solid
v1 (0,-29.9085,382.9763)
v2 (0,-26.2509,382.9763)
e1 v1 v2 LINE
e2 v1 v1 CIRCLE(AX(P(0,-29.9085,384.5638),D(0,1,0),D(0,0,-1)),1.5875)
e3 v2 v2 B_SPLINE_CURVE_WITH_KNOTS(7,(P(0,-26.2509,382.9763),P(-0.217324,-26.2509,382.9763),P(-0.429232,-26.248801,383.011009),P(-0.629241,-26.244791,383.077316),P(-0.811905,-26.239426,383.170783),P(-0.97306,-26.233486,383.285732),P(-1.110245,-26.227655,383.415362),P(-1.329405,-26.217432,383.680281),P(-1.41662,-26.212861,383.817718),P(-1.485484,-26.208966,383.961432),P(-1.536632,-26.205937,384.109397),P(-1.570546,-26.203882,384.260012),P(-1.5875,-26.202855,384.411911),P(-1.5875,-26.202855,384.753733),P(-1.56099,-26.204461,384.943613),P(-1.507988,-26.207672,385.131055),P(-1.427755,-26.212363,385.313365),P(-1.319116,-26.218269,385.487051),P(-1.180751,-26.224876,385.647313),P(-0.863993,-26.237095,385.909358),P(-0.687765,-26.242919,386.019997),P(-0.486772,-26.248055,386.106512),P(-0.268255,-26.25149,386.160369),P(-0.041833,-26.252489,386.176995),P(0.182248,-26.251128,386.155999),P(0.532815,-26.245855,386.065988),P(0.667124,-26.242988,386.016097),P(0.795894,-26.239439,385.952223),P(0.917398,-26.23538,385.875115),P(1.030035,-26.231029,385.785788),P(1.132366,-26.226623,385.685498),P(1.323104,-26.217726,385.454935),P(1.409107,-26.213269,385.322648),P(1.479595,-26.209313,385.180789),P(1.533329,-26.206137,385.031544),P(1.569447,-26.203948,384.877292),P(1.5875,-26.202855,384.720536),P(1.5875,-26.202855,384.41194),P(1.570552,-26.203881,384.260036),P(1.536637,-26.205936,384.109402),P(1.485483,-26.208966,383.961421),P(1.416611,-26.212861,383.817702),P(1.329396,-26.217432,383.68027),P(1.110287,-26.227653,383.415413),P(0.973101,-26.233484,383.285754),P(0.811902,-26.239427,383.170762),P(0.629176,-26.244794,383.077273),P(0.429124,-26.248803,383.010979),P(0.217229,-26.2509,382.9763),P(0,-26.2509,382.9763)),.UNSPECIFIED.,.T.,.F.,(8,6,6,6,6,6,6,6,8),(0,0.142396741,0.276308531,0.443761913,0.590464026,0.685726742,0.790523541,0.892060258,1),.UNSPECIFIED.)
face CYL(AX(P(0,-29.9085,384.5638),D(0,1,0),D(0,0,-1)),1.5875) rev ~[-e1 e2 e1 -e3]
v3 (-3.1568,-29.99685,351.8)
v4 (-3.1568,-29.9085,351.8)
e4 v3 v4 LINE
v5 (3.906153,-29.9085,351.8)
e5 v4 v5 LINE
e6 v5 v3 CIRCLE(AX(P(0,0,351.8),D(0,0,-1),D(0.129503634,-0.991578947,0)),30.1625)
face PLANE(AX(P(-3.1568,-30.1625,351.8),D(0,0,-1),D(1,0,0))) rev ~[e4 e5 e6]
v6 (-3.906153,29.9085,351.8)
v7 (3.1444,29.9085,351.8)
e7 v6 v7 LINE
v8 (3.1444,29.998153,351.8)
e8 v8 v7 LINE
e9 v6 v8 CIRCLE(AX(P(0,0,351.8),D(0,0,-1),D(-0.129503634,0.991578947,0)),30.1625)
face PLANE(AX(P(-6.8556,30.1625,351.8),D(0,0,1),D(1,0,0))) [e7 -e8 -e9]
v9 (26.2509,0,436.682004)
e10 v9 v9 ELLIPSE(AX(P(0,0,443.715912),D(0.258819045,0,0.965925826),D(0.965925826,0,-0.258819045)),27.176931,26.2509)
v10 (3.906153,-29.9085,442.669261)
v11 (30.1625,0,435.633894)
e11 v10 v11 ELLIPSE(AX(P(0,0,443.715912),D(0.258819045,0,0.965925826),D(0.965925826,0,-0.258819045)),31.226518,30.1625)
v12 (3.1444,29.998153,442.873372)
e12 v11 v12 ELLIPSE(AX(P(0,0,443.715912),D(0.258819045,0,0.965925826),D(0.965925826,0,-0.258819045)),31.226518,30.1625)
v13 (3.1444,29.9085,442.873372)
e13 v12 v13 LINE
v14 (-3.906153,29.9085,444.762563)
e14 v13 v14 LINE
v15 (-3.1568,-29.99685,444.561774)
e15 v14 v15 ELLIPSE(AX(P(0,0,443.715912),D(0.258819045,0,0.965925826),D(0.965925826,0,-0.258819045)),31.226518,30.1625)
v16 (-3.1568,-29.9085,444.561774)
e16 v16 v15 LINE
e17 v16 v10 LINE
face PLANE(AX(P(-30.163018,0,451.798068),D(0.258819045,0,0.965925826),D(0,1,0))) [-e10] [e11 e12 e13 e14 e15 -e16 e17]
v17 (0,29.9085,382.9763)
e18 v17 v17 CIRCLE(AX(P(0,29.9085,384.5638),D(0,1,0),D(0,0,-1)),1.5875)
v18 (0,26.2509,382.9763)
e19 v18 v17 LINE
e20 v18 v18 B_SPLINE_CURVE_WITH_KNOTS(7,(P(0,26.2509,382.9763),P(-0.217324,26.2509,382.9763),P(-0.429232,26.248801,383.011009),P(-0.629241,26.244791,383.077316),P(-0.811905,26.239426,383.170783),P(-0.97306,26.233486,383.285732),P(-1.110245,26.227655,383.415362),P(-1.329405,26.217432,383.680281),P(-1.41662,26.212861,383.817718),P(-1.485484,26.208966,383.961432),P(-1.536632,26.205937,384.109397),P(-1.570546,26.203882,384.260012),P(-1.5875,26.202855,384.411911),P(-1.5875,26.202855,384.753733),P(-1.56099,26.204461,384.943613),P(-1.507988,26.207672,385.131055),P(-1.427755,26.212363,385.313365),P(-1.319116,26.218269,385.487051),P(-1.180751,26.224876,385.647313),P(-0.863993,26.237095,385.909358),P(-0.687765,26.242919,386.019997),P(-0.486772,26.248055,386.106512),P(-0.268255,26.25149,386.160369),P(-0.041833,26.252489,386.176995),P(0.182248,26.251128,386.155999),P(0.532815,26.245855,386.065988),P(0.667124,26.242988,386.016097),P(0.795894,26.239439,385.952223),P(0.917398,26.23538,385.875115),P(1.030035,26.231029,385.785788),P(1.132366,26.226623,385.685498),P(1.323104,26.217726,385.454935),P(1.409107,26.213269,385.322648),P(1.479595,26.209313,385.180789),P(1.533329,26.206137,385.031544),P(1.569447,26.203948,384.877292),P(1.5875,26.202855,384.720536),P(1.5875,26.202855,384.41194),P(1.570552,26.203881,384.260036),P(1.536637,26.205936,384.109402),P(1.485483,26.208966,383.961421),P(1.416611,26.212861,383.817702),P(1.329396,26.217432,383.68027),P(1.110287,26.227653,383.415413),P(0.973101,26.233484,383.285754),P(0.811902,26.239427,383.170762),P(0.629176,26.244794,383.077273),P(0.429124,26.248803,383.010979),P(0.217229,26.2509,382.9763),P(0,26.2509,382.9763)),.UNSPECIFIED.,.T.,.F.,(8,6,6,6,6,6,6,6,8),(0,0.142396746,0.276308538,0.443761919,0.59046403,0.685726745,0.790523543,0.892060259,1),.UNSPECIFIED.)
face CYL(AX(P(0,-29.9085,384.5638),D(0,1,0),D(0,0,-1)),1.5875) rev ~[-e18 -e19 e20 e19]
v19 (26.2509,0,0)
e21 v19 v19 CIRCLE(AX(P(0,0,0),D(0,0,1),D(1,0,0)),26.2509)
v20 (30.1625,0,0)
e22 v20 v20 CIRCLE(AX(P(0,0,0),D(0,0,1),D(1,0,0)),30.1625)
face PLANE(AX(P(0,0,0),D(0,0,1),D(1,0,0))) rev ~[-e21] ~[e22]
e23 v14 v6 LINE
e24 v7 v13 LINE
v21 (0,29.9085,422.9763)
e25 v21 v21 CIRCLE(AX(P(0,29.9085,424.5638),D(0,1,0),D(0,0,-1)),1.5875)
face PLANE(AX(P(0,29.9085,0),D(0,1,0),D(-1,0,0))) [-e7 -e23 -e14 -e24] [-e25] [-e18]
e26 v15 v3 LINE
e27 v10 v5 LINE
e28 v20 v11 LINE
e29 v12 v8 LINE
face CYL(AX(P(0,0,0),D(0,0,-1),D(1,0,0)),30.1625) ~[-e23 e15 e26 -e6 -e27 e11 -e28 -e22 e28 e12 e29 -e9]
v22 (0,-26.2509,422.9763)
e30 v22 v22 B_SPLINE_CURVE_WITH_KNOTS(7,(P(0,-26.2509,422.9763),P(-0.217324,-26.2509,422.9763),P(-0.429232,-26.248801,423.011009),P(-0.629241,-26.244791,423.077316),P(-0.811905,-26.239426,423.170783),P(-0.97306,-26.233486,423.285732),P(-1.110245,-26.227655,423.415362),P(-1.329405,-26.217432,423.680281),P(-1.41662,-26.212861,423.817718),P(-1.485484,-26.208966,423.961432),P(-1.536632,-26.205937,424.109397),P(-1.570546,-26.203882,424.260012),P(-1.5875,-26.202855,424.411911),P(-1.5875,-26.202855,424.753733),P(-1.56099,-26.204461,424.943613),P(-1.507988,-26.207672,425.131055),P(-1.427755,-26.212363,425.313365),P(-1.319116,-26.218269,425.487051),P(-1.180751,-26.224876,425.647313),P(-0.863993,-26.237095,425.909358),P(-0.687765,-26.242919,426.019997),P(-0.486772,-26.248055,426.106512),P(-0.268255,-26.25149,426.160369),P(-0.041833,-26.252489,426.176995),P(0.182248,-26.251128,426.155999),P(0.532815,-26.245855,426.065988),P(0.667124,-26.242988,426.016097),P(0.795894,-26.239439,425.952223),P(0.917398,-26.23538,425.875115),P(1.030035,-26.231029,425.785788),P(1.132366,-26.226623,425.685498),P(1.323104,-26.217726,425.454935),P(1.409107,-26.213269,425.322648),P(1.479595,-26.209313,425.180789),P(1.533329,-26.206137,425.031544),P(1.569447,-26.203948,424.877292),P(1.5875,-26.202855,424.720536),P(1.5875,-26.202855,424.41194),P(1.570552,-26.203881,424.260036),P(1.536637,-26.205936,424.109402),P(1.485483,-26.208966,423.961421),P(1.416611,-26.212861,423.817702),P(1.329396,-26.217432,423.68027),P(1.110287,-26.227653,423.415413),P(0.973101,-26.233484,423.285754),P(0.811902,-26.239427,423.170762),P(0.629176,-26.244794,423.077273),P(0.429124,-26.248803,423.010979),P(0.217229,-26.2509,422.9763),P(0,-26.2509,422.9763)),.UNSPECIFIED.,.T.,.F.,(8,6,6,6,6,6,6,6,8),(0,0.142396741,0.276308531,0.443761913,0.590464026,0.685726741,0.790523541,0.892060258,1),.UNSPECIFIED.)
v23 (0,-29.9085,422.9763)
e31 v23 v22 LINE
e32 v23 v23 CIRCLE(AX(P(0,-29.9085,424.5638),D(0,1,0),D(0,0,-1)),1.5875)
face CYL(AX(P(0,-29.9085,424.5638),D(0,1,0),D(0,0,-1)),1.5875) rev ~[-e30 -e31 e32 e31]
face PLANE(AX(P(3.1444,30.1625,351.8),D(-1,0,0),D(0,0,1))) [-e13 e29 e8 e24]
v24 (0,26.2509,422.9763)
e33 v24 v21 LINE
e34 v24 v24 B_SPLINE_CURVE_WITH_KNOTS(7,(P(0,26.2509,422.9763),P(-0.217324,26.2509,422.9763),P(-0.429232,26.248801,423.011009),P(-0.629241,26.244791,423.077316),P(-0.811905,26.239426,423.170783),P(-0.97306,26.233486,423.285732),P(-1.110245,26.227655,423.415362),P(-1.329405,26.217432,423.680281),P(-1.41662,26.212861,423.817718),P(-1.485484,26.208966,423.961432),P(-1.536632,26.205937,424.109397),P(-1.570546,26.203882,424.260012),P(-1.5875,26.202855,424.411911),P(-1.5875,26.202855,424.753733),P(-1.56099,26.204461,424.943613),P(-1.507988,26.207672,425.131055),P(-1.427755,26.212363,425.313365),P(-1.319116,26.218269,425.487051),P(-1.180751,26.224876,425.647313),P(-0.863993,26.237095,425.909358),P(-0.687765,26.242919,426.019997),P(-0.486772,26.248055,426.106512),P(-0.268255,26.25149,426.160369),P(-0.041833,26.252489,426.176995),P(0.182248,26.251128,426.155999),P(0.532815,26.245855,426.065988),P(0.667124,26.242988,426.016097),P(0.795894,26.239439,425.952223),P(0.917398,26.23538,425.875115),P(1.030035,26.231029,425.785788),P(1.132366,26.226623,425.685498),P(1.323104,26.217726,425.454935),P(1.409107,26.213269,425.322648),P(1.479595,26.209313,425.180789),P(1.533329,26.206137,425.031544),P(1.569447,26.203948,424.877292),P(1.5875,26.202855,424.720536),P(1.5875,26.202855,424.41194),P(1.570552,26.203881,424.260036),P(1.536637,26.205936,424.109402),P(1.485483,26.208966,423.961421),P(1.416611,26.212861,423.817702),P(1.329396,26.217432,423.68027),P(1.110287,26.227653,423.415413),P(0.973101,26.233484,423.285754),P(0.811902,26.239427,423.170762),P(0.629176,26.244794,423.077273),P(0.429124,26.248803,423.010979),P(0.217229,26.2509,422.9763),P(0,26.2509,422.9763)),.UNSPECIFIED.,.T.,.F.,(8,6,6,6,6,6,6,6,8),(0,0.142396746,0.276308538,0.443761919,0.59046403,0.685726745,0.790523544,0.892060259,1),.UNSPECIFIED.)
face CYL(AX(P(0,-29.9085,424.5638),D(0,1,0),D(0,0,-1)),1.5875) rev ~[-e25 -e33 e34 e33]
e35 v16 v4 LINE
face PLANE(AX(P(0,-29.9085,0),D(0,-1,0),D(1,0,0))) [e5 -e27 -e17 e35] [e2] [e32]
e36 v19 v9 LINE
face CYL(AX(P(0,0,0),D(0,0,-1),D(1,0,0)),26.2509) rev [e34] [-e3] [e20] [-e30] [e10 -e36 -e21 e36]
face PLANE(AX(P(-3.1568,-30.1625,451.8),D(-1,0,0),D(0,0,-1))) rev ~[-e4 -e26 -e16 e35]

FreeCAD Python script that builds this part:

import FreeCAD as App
import Part
import Sketcher
Q = App.Units.Quantity


def add_polygon(sketch, points):
    """Adds a closed chain of lines whose ends are joined by coincident constraints."""
    first, n = sketch.GeometryCount, len(points)
    for a, b in zip(points, points[1:] + points[:1]):
        sketch.addGeometry(Part.LineSegment(App.Vector(*a, 0), App.Vector(*b, 0)), False)
    for i in range(n):
        sketch.addConstraint(Sketcher.Constraint("Coincident", first + i, 2, first + (i + 1) % n, 1))

doc = App.newDocument("Part")
body = doc.addObject("PartDesign::Body", "Body")

sketch1 = body.newObject("Sketcher::SketchObject", "Sketch")
sketch1.AttachmentSupport = (doc.getObject("XY_Plane"), [""])
sketch1.MapMode = "FlatFace"
sketch1.addGeometry(Part.Circle(App.Vector(0, 0, 0), App.Vector(0, 0, 1), 30.1625), False)
sketch1.addGeometry(Part.Circle(App.Vector(0, 0, 0), App.Vector(0, 0, 1), 26.2509), False)
sketch1.addConstraint(Sketcher.Constraint("Coincident", 0, 3, -1, 1))
sketch1.addConstraint(Sketcher.Constraint("Coincident", 1, 3, -1, 1))
sketch1.addConstraint(Sketcher.Constraint("Diameter", 0, Q("2.375 in")))
sketch1.addConstraint(Sketcher.Constraint("Diameter", 1, Q("2.067 in")))
pad1 = body.newObject("PartDesign::Pad", "Pad")
pad1.Profile = sketch1
pad1.Length = Q("17.7874016 in")

sketch2 = body.newObject("Sketcher::SketchObject", "Sketch001")
sketch2.Placement = App.Placement(App.Vector(-30.1625, 0, 451.8), App.Rotation(App.Vector(0, 1, 0), App.Vector(-0.965925826, 0, 0.258819045), App.Vector(0.258819045, 0, 0.965925826), "ZXY"))
add_polygon(sketch2, [(-31.6137, 6.6524), (-31.6137, -94.9476), (64.4261, -94.9476), (64.4261, 6.6524)])
sketch2.addConstraint(Sketcher.Constraint("Vertical", 0))
sketch2.addConstraint(Sketcher.Constraint("Horizontal", 1))
sketch2.addConstraint(Sketcher.Constraint("Vertical", 2))
sketch2.addConstraint(Sketcher.Constraint("Horizontal", 3))
sketch2.addConstraint(Sketcher.Constraint("DistanceY", 0, 2, 0, 1, Q("4 in")))
sketch2.addConstraint(Sketcher.Constraint("DistanceX", 1, 1, 1, 2, Q("3.7811 in")))
sketch2.addConstraint(Sketcher.Constraint("DistanceY", 0, 2, -1, 1, Q("3.7381 in")))
sketch2.addConstraint(Sketcher.Constraint("DistanceX", 0, 2, -1, 1, 31.6137))
pocket1 = body.newObject("PartDesign::Pocket", "Pocket")
pocket1.Profile = sketch2
pocket1.Length = Q("1 in")
pocket1.Reversed = True

sketch3 = body.newObject("Sketcher::SketchObject", "Sketch002")
sketch3.AttachmentSupport = (doc.getObject("XZ_Plane"), [""])
sketch3.MapMode = "FlatFace"
sketch3.AttachmentOffset = App.Placement(App.Vector(0, 0, -1.1875 * 25.4), App.Rotation())
add_polygon(sketch3, [(-6.8556, 451.8), (3.1444, 451.8), (3.1444, 351.8), (-6.8556, 351.8)])
sketch3.addConstraint(Sketcher.Constraint("Horizontal", 0))
sketch3.addConstraint(Sketcher.Constraint("Vertical", 1))
sketch3.addConstraint(Sketcher.Constraint("Horizontal", 2))
sketch3.addConstraint(Sketcher.Constraint("Vertical", 3))
sketch3.addConstraint(Sketcher.Constraint("DistanceY", 1, 2, 1, 1, Q("3.937 in")))
sketch3.addConstraint(Sketcher.Constraint("DistanceX", 0, 1, 0, 2, Q("0.3937 in")))
sketch3.addConstraint(Sketcher.Constraint("DistanceY", -1, 1, 1, 2, Q("13.8504 in")))
sketch3.addConstraint(Sketcher.Constraint("DistanceX", -1, 1, 0, 2, Q("0.1238 in")))
pocket2 = body.newObject("PartDesign::Pocket", "Pocket001")
pocket2.Profile = sketch3
pocket2.Length = Q("0.01 in")
pocket2.Reversed = True

sketch4 = body.newObject("Sketcher::SketchObject", "Sketch003")
sketch4.AttachmentSupport = (doc.getObject("XZ_Plane"), [""])
sketch4.MapMode = "FlatFace"
sketch4.AttachmentOffset = App.Placement(App.Vector(0, 0, 1.1875 * 25.4), App.Rotation())
add_polygon(sketch4, [(-3.1568, 451.8), (-3.1568, 351.8), (6.8432, 351.8), (6.8432, 451.8)])
sketch4.addConstraint(Sketcher.Constraint("Vertical", 0))
sketch4.addConstraint(Sketcher.Constraint("Horizontal", 1))
sketch4.addConstraint(Sketcher.Constraint("Vertical", 2))
sketch4.addConstraint(Sketcher.Constraint("Horizontal", 3))
sketch4.addConstraint(Sketcher.Constraint("DistanceY", 0, 2, 0, 1, Q("3.937 in")))
sketch4.addConstraint(Sketcher.Constraint("DistanceX", 1, 1, 1, 2, Q("0.3937 in")))
sketch4.addConstraint(Sketcher.Constraint("DistanceY", -1, 1, 0, 2, Q("13.8504 in")))
sketch4.addConstraint(Sketcher.Constraint("DistanceX", 0, 2, -1, 1, 3.1568))
pocket3 = body.newObject("PartDesign::Pocket", "Pocket002")
pocket3.Profile = sketch4
pocket3.Length = Q("0.01 in")

sketch5 = body.newObject("Sketcher::SketchObject", "Sketch004")
sketch5.AttachmentSupport = (doc.getObject("XZ_Plane"), [""])
sketch5.MapMode = "FlatFace"
sketch5.AttachmentOffset = App.Placement(App.Vector(0, 0, 1.1775 * 25.4), App.Rotation())
sketch5.addGeometry(Part.Circle(App.Vector(0, 424.5638, 0), App.Vector(0, 0, 1), 1.5875), False)
sketch5.addGeometry(Part.Circle(App.Vector(0, 384.5638, 0), App.Vector(0, 0, 1), 1.5875), False)
sketch5.addConstraint(Sketcher.Constraint("Equal", 0, 1))
sketch5.addConstraint(Sketcher.Constraint("PointOnObject", 0, 3, -2))
sketch5.addConstraint(Sketcher.Constraint("PointOnObject", 1, 3, -2))
sketch5.addConstraint(Sketcher.Constraint("Diameter", 0, Q("0.125 in")))
sketch5.addConstraint(Sketcher.Constraint("DistanceY", -1, 1, 0, 3, Q("16.7151 in")))
sketch5.addConstraint(Sketcher.Constraint("DistanceY", -1, 1, 1, 3, Q("15.1403 in")))
doc.recompute()
hole = body.newObject("PartDesign::Hole", "Hole")
hole.Profile = sketch5
hole.ThreadType = "None"
hole.Diameter = Q("0.125 in")
hole.DepthType = "ThroughAll"

doc.recompute()
